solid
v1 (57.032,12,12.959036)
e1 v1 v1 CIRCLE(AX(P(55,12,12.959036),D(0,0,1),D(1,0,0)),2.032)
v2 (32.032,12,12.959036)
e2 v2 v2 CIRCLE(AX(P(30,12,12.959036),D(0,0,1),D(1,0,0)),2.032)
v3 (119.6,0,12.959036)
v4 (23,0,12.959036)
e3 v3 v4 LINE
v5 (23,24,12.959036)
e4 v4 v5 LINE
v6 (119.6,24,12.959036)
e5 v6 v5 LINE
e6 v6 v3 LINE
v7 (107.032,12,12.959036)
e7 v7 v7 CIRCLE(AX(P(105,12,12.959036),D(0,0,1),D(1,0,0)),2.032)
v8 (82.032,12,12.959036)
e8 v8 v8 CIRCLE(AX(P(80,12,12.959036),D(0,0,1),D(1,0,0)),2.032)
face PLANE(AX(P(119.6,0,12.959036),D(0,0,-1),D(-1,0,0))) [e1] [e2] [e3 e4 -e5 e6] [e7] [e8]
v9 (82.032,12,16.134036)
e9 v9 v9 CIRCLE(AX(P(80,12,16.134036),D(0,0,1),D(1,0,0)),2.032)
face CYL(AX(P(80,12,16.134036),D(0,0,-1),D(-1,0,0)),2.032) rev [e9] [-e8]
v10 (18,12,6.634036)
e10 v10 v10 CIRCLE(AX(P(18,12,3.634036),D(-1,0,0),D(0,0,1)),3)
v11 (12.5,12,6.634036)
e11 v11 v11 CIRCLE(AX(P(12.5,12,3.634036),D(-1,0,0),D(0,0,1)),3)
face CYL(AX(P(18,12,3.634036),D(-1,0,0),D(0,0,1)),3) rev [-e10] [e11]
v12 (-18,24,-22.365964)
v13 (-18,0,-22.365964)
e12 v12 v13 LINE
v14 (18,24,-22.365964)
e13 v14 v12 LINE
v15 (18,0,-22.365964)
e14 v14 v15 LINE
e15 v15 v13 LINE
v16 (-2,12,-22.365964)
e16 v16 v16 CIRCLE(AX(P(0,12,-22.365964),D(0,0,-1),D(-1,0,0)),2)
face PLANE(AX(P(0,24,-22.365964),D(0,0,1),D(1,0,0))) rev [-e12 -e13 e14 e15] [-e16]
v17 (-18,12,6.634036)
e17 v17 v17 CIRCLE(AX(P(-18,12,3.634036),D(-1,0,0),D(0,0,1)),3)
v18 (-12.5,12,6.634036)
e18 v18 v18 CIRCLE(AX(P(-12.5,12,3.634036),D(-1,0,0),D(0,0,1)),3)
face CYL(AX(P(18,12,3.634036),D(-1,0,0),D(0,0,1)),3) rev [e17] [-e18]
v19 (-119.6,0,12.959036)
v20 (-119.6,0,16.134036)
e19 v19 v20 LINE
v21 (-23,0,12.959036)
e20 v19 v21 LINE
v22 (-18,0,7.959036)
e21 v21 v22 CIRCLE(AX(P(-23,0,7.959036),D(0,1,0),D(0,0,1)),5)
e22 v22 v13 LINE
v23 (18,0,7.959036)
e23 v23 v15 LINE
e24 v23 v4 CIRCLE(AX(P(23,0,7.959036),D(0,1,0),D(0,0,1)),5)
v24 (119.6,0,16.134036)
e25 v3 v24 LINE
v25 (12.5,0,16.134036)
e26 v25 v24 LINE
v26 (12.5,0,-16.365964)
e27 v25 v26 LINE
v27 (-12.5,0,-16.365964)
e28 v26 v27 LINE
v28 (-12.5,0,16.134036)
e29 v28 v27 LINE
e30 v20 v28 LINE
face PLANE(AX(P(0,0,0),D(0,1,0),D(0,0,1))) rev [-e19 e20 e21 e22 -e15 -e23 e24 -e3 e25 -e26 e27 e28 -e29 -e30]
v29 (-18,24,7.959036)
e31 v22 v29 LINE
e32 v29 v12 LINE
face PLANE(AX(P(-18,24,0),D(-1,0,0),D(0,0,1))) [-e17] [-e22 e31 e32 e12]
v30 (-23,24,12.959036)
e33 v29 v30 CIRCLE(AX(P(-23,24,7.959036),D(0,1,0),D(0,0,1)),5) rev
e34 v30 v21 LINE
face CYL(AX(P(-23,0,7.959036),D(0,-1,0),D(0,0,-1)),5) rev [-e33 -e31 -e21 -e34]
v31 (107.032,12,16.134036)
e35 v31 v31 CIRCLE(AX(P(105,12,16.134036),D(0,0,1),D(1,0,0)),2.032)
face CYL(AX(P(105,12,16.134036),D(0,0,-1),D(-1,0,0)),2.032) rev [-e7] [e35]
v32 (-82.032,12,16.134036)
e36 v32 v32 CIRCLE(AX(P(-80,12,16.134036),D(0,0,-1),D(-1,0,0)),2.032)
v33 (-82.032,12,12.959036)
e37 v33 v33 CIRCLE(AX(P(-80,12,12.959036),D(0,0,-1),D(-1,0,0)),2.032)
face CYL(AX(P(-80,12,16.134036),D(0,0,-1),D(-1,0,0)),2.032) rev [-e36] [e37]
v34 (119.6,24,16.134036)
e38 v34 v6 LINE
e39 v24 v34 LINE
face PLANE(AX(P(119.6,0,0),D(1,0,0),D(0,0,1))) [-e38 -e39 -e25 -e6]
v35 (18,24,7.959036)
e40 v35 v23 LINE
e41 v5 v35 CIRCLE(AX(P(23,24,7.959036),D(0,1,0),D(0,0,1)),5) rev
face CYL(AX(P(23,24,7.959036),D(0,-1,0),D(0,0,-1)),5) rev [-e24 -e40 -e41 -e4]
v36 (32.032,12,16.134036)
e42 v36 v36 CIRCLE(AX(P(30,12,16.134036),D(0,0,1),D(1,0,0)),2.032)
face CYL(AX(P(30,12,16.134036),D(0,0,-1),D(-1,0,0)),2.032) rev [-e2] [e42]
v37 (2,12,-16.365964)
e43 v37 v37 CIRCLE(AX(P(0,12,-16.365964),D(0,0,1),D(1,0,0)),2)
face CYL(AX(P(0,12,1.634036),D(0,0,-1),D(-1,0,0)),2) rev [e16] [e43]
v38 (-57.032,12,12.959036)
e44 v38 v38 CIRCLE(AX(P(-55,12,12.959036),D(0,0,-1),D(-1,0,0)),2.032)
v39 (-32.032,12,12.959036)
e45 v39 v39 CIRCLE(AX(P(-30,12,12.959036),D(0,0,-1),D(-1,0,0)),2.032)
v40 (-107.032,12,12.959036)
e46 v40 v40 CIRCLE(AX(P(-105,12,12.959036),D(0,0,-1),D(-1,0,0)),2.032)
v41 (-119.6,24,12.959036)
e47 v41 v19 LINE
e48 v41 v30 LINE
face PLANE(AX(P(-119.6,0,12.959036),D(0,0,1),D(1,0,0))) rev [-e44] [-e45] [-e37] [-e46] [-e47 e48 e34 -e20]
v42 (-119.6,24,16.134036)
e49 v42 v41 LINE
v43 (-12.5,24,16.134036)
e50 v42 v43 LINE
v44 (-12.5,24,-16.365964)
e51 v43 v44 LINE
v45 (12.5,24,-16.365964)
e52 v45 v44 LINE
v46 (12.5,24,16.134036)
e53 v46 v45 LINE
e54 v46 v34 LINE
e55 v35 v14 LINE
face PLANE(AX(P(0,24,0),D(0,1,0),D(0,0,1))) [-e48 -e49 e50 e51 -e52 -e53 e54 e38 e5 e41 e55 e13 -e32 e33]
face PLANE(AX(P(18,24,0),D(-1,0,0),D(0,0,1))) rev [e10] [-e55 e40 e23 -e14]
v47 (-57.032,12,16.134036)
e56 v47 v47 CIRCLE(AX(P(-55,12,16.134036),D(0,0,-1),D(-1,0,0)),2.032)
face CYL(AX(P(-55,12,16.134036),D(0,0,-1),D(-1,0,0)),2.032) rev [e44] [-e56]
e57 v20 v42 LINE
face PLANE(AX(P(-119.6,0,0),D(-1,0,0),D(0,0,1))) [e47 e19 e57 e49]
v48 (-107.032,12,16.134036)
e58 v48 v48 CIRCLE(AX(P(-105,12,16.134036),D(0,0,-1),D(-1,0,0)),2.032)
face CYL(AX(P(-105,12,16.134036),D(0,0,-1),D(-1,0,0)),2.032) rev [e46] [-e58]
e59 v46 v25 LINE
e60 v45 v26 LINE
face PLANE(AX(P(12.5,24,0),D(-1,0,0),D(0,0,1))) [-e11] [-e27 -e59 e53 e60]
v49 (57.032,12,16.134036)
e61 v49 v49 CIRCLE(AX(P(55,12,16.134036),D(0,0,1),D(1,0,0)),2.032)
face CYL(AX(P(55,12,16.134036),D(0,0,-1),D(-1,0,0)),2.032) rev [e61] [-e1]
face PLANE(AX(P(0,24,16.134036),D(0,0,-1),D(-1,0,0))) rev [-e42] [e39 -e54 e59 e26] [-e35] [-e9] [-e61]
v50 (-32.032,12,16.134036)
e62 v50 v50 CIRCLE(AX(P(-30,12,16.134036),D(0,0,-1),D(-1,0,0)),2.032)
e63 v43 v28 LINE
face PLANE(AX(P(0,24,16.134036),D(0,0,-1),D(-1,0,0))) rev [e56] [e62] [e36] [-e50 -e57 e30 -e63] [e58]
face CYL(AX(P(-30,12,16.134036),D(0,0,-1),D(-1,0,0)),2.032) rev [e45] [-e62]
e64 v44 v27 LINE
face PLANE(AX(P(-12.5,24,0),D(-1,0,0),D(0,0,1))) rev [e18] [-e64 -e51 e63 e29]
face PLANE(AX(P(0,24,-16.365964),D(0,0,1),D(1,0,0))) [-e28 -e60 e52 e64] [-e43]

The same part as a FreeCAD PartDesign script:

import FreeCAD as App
import Part
import Sketcher
Q = App.Units.Quantity


def edges_at(feature, points):
    """Names of the edges that pass closest to the given points."""
    edges = feature.Shape.Edges
    near = lambda p: min(range(len(edges)), key=lambda i: edges[i].distToShape(Part.Vertex(*p))[0])
    return sorted({f"Edge{near(p) + 1}" for p in points})

doc = App.newDocument("Part")
body = doc.addObject("PartDesign::Body", "Body")

sketch1 = body.newObject("Sketcher::SketchObject", "Sketch")
sketch1.AttachmentSupport = (doc.getObject("XZ_Plane"), [""])
sketch1.MapMode = "FlatFace"
sketch1.addGeometry([
    Part.LineSegment(App.Vector(12, -16, 0), App.Vector(12, 16, 0)),
    Part.LineSegment(App.Vector(12, 16, 0), App.Vector(18, 16, 0)),
    Part.LineSegment(App.Vector(18, 16, 0), App.Vector(18, -22, 0)),
    Part.LineSegment(App.Vector(18, -22, 0), App.Vector(-18, -22, 0)),
    Part.LineSegment(App.Vector(-18, -22, 0), App.Vector(-18, 16, 0)),
    Part.LineSegment(App.Vector(-18, 16, 0), App.Vector(-12, 16, 0)),
    Part.LineSegment(App.Vector(-12, 16, 0), App.Vector(-12, -16, 0)),
    Part.LineSegment(App.Vector(-12, -16, 0), App.Vector(12, -16, 0)),
], False)
sketch1.addConstraint([
    Sketcher.Constraint("Coincident", 0, 2, 1, 1),
    Sketcher.Constraint("Coincident", 1, 2, 2, 1),
    Sketcher.Constraint("Coincident", 2, 2, 3, 1),
    Sketcher.Constraint("Coincident", 3, 2, 4, 1),
    Sketcher.Constraint("Coincident", 4, 2, 5, 1),
    Sketcher.Constraint("Coincident", 5, 2, 6, 1),
    Sketcher.Constraint("Coincident", 6, 2, 7, 1),
    Sketcher.Constraint("Coincident", 7, 2, 0, 1),
    Sketcher.Constraint("Vertical", 0),
    Sketcher.Constraint("Horizontal", 1),
    Sketcher.Constraint("Vertical", 2),
    Sketcher.Constraint("Horizontal", 3),
    Sketcher.Constraint("Vertical", 4),
    Sketcher.Constraint("Horizontal", 5),
    Sketcher.Constraint("Vertical", 6),
    Sketcher.Constraint("Horizontal", 7),
    Sketcher.Constraint("Symmetric", 1, 2, 4, 2, -2),
    Sketcher.Constraint("Equal", 1, 5),
    Sketcher.Constraint("DistanceX", 3, 2, 3, 1, Q("36 mm")),
    Sketcher.Constraint("DistanceX", 7, 1, 7, 2, Q("25 mm")),
    Sketcher.Constraint("DistanceY", 0, 1, 0, 2, Q("32.5 mm")),
    Sketcher.Constraint("DistanceY", 2, 2, 2, 1, Q("38.5 mm")),
    Sketcher.Constraint("DistanceY", -1, 1, 0, 2, Q("16.134036 mm")),
])
pad1 = body.newObject("PartDesign::Pad", "Pad")
pad1.Profile = sketch1
pad1.Length = 24
pad1.Reversed = True

sketch2 = body.newObject("Sketcher::SketchObject", "Sketch001")
sketch2.AttachmentSupport = (doc.getObject("XY_Plane"), [""])
sketch2.MapMode = "FlatFace"
sketch2.AttachmentOffset = App.Placement(App.Vector(0, 0, -22.365964), App.Rotation())
sketch2.addGeometry(Part.Circle(App.Vector(0, 12, 0), App.Vector(0, 0, 1), 2), False)
sketch2.addConstraint([
    Sketcher.Constraint("PointOnObject", 0, 3, -2),
    Sketcher.Constraint("Diameter", 0, Q("4 mm")),
    Sketcher.Constraint("DistanceY", -1, 1, 0, 3, Q("12 mm")),
])
pocket1 = body.newObject("PartDesign::Pocket", "Pocket")
pocket1.Profile = sketch2
pocket1.Length = 24
pocket1.Reversed = True

sketch3 = body.newObject("Sketcher::SketchObject", "Sketch002")
sketch3.AttachmentSupport = (doc.getObject("YZ_Plane"), [""])
sketch3.MapMode = "FlatFace"
sketch3.AttachmentOffset = App.Placement(App.Vector(0, 0, -18), App.Rotation())
sketch3.addGeometry(Part.Circle(App.Vector(12, 3.6, 0), App.Vector(0, 0, 1), 3), False)
sketch3.addConstraint([
    Sketcher.Constraint("Diameter", 0, Q("6 mm")),
    Sketcher.Constraint("DistanceX", -1, 1, 0, 3, Q("12 mm")),
    Sketcher.Constraint("DistanceY", -1, 1, 0, 3, Q("3.634036 mm")),
])
pocket2 = body.newObject("PartDesign::Pocket", "Pocket001")
pocket2.Profile = sketch3
pocket2.Type = "ThroughAll"
pocket2.Midplane = True

sketch4 = body.newObject("Sketcher::SketchObject", "Sketch003")
sketch4.AttachmentSupport = (doc.getObject("YZ_Plane"), [""])
sketch4.MapMode = "FlatFace"
sketch4.AttachmentOffset = App.Placement(App.Vector(0, 0, -18), App.Rotation())
sketch4.addGeometry([
    Part.LineSegment(App.Vector(24, 13, 0), App.Vector(0, 13, 0)),
    Part.LineSegment(App.Vector(0, 13, 0), App.Vector(0, 16.1, 0)),
    Part.LineSegment(App.Vector(0, 16.1, 0), App.Vector(24, 16.1, 0)),
    Part.LineSegment(App.Vector(24, 16.1, 0), App.Vector(24, 13, 0)),
], False)
sketch4.addConstraint([
    Sketcher.Constraint("Coincident", 0, 2, 1, 1),
    Sketcher.Constraint("Coincident", 1, 2, 2, 1),
    Sketcher.Constraint("Coincident", 2, 2, 3, 1),
    Sketcher.Constraint("Coincident", 3, 2, 0, 1),
    Sketcher.Constraint("Horizontal", 0),
    Sketcher.Constraint("Vertical", 1),
    Sketcher.Constraint("Horizontal", 2),
    Sketcher.Constraint("Vertical", 3),
    Sketcher.Constraint("PointOnObject", 0, 2, -2),
    Sketcher.Constraint("DistanceX", 0, 2, 0, 1, Q("24 mm")),
    Sketcher.Constraint("DistanceY", 1, 1, 1, 2, Q("3.175 mm")),
    Sketcher.Constraint("DistanceY", -1, 1, 0, 2, Q("12.959036 mm")),
])
pad2 = body.newObject("PartDesign::Pad", "Pad001")
pad2.Profile = sketch4
pad2.Length = 101.6
pad2.Reversed = True

sketch5 = body.newObject("Sketcher::SketchObject", "Sketch004")
sketch5.AttachmentSupport = (doc.getObject("XY_Plane"), [""])
sketch5.MapMode = "FlatFace"
sketch5.AttachmentOffset = App.Placement(App.Vector(0, 0, 12.959036), App.Rotation())
sketch5.addGeometry([
    Part.Circle(App.Vector(-30, 12, 0), App.Vector(0, 0, 1), 2),
    Part.Circle(App.Vector(-55, 12, 0), App.Vector(0, 0, 1), 2),
    Part.Circle(App.Vector(-80, 12, 0), App.Vector(0, 0, 1), 2),
    Part.Circle(App.Vector(-105, 12, 0), App.Vector(0, 0, 1), 2),
    Part.Circle(App.Vector(-130, 12, 0), App.Vector(0, 0, 1), 2),
    Part.Circle(App.Vector(-155, 12, 0), App.Vector(0, 0, 1), 2),
], False)
sketch5.addConstraint([
    Sketcher.Constraint("Equal", 0, 1),
    Sketcher.Constraint("Equal", 1, 2),
    Sketcher.Constraint("Equal", 2, 3),
    Sketcher.Constraint("Equal", 3, 4),
    Sketcher.Constraint("Equal", 4, 5),
    Sketcher.Constraint("Horizontal", 0, 3, 1, 3),
    Sketcher.Constraint("Horizontal", 1, 3, 2, 3),
    Sketcher.Constraint("Horizontal", 2, 3, 3, 3),
    Sketcher.Constraint("Horizontal", 3, 3, 4, 3),
    Sketcher.Constraint("Horizontal", 4, 3, 5, 3),
    Sketcher.Constraint("Diameter", 0, Q("4.064 mm")),
    Sketcher.Constraint("DistanceX", 0, 3, -1, 1, Q("30 mm")),
    Sketcher.Constraint("DistanceY", -1, 1, 0, 3, Q("12 mm")),
    Sketcher.Constraint("DistanceX", 1, 3, -1, 1, Q("55 mm")),
    Sketcher.Constraint("DistanceX", 2, 3, -1, 1, Q("80 mm")),
    Sketcher.Constraint("DistanceX", 3, 3, -1, 1, Q("105 mm")),
    Sketcher.Constraint("DistanceX", 4, 3, -1, 1, Q("130 mm")),
    Sketcher.Constraint("DistanceX", 5, 3, -1, 1, Q("155 mm")),
])
pocket3 = body.newObject("PartDesign::Pocket", "Pocket002")
pocket3.Profile = sketch5
pocket3.Type = "ThroughAll"
pocket3.Reversed = True
doc.recompute()

mirrored = body.newObject("PartDesign::Mirrored", "Mirrored")
mirrored.Originals = [pad2, pocket3]
mirrored.MirrorPlane = (doc.getObject("YZ_Plane"), [""])
body.Tip = mirrored
doc.recompute()

fillet = body.newObject("PartDesign::Fillet", "Fillet")
fillet.Base = (mirrored, edges_at(mirrored, [(-18, 12, 12.959)]))
fillet.Radius = 5
doc.recompute()

fillet2 = body.newObject("PartDesign::Fillet", "Fillet001")
fillet2.Base = (fillet, edges_at(fillet, [(18, 12, 12.959)]))
fillet2.Radius = 5

doc.recompute()
